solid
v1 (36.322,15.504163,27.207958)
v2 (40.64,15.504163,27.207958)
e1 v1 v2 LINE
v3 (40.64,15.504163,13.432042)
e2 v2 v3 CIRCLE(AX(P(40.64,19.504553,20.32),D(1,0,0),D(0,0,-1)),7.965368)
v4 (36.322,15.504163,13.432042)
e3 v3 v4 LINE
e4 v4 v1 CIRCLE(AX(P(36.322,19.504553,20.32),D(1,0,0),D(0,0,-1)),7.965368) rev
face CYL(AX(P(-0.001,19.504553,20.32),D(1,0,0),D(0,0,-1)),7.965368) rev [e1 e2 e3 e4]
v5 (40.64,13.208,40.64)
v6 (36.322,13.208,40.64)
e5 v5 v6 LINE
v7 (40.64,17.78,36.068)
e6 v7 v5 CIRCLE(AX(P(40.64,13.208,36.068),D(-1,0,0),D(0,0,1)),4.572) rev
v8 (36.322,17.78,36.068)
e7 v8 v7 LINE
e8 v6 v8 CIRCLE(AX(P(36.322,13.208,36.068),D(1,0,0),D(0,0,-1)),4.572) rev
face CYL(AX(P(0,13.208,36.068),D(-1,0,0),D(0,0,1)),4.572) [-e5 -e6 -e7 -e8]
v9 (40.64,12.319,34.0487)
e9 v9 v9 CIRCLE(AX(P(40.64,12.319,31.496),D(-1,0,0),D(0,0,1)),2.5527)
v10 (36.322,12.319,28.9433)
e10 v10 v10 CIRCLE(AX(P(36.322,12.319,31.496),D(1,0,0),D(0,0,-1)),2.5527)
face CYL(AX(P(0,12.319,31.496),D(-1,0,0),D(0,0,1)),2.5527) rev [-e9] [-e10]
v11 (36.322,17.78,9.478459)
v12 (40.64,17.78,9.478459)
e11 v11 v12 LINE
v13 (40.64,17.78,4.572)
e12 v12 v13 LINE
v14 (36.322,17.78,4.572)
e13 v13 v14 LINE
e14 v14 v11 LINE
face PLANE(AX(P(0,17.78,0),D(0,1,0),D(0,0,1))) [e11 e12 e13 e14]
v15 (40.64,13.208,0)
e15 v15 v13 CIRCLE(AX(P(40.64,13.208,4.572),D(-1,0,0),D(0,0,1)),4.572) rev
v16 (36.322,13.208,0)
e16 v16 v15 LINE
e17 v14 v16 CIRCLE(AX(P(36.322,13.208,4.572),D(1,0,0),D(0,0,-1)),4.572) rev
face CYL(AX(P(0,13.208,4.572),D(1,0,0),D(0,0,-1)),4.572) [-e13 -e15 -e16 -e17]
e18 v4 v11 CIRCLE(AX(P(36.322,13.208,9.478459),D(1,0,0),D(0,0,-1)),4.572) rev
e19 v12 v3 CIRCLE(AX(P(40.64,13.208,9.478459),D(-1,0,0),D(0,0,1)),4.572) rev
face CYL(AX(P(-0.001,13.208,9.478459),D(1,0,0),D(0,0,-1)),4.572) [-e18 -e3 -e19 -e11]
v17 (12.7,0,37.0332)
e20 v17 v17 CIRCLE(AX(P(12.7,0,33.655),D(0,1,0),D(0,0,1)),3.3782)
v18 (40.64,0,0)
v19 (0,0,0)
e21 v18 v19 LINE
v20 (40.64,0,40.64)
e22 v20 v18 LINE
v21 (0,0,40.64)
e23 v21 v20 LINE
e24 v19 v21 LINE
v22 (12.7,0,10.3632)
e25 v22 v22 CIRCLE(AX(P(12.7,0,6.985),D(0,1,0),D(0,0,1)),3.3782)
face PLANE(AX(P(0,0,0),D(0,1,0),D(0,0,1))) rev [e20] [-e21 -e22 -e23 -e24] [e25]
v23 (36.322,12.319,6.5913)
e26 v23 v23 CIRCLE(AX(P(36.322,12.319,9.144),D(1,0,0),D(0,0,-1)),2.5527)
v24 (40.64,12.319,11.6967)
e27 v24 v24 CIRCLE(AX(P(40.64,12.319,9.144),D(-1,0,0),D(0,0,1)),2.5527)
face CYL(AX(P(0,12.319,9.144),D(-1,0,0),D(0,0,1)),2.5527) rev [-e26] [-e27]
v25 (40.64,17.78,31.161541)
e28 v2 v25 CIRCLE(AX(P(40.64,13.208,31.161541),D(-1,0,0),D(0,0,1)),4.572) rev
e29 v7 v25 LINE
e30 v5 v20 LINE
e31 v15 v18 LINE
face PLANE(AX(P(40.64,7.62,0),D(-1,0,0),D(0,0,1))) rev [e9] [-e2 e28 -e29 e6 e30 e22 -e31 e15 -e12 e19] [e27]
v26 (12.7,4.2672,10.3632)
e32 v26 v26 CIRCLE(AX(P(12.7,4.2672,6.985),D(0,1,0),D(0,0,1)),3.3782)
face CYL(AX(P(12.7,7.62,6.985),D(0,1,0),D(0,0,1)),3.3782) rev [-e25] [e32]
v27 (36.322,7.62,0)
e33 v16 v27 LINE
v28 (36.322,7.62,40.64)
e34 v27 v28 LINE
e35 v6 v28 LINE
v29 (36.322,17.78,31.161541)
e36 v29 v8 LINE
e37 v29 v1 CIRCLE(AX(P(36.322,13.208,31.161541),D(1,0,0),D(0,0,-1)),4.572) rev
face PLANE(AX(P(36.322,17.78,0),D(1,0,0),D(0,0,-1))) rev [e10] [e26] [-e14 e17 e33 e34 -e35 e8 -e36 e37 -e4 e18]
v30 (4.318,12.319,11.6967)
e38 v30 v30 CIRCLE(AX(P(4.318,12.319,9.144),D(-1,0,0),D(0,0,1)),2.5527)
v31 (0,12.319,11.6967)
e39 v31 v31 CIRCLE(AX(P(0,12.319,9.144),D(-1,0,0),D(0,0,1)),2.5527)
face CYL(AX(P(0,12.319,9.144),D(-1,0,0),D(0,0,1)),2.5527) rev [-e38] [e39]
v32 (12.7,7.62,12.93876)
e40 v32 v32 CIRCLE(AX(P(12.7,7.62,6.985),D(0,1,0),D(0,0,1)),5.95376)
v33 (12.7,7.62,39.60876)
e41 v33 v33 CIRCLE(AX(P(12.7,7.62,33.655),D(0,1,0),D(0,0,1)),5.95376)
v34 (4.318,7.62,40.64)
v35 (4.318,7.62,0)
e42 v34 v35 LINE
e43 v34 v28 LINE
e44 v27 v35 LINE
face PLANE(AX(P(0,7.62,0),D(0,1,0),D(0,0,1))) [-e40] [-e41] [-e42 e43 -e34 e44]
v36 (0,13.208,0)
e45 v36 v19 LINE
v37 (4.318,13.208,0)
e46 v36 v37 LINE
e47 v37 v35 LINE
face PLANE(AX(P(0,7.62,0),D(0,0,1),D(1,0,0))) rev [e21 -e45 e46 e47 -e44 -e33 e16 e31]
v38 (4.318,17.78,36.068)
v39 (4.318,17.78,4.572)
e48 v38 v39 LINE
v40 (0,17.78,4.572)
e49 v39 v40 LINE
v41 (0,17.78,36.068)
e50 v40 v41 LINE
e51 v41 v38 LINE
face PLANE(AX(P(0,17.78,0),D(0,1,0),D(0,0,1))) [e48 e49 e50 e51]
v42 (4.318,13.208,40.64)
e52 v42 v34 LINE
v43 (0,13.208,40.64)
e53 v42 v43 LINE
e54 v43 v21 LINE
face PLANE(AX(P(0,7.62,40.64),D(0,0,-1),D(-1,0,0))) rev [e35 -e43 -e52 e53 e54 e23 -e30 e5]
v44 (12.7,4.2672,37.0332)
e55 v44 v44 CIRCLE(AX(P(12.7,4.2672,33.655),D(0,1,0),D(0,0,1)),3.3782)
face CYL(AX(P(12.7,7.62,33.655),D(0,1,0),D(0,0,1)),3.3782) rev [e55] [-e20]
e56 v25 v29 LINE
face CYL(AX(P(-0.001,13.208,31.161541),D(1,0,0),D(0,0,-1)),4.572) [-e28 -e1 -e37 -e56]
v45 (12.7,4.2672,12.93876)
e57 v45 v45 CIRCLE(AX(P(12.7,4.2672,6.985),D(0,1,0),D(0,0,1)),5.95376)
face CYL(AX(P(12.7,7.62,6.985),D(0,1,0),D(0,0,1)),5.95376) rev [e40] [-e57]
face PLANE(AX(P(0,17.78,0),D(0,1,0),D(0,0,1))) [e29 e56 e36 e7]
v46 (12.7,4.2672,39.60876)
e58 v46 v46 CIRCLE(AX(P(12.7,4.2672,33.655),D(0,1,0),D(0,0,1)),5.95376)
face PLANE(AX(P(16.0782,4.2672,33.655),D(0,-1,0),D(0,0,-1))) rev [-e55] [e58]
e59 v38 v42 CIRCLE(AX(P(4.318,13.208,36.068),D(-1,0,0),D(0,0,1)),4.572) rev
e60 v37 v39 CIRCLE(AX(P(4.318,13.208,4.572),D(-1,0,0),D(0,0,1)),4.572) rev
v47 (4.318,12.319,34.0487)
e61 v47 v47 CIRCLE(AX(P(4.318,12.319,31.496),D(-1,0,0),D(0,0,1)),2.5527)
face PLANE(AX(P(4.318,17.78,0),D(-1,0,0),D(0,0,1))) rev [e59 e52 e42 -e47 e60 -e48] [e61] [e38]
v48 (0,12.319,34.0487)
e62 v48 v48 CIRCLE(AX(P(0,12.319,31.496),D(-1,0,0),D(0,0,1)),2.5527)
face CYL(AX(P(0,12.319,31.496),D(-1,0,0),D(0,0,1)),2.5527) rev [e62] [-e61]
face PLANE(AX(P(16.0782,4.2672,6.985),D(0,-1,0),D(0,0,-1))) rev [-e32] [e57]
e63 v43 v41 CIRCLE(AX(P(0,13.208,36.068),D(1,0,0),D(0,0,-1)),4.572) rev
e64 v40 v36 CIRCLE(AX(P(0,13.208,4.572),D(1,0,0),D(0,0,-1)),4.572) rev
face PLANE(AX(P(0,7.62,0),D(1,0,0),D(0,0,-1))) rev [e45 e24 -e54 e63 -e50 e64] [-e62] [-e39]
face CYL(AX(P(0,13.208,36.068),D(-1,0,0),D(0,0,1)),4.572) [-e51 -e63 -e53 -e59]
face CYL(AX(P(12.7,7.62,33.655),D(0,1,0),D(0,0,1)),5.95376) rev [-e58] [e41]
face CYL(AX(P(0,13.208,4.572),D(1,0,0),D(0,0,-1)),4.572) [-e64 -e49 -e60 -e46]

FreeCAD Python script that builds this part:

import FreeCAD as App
import Part
import Sketcher
from FreeCAD import Vector
Q = App.Units.Quantity


def edges_at(feature, points):
    """Names of the edges that pass closest to the given points."""
    edges = feature.Shape.Edges
    near = lambda p: min(range(len(edges)), key=lambda i: edges[i].distToShape(Part.Vertex(*p))[0])
    return sorted({f"Edge{near(p) + 1}" for p in points})

doc = App.newDocument("Part")
params = doc.addObject("Spreadsheet::Sheet", "Params")
for row, (alias, value) in enumerate([
    ("sketch1_width", "1.6 in"),
    ("pad1_length", "0.3 in"),
    ("sketch2_height", "1.6 in"),
    ("sketch2_width", "0.17 in"),
    ("pad2_length", "0.4 in"),
    ("sketch3_diameter", "0.201 in"),
    ("hole_diameter", "0.201 in"),
    ("sketch4_diameter", "0.266 in"),
    ("hole2_diameter", "0.266 in"),
    ("hole2_cbore_diameter", "0.4688 in"),
    ("hole2_cbore_depth", "0.132 in"),
    ("pocket1_length", "0.17 in"),
    ("fillet_radius", "0.18 in"),
], start=1):
    params.set(f"A{row}", alias)
    params.set(f"B{row}", "=" + value)
    params.setAlias(f"B{row}", alias)

body = doc.addObject("PartDesign::Body", "Body")

# Sketch on XZ plane
sketch1 = body.newObject("Sketcher::SketchObject", "Sketch")
sketch1.AttachmentSupport = (doc.getObject("XZ_Plane"), [""])
sketch1.MapMode = "FlatFace"
sketch1.addGeometry([
    Part.LineSegment(Vector(0, 0, 0), Vector(0, 40.64, 0)),
    Part.LineSegment(Vector(0, 40.64, 0), Vector(40.64, 40.64, 0)),
    Part.LineSegment(Vector(40.64, 40.64, 0), Vector(40.64, 0, 0)),
    Part.LineSegment(Vector(40.64, 0, 0), Vector(0, 0, 0)),
], False)
sketch1.addConstraint([
    Sketcher.Constraint("Coincident", 0, 2, 1, 1),
    Sketcher.Constraint("Coincident", 1, 2, 2, 1),
    Sketcher.Constraint("Coincident", 2, 2, 3, 1),
    Sketcher.Constraint("Coincident", 3, 2, 0, 1),
    Sketcher.Constraint("Vertical", 0),
    Sketcher.Constraint("Horizontal", 1),
    Sketcher.Constraint("Vertical", 2),
    Sketcher.Constraint("Horizontal", 3),
    Sketcher.Constraint("Coincident", 3, 2, -1, 1),
    Sketcher.Constraint("Equal", 3, 0),
    Sketcher.Constraint("DistanceX", 1, 1, 1, 2, Q("1.6 in")),
])
sketch1.setExpression("Constraints[10]", "Params.sketch1_width")
pad1 = body.newObject("PartDesign::Pad", "Pad")
pad1.Profile = sketch1
pad1.setExpression("Length", "Params.pad1_length")
pad1.Reversed = True

# Sketch on XZ plane
sketch2 = body.newObject("Sketcher::SketchObject", "Sketch001")
sketch2.AttachmentSupport = (doc.getObject("XZ_Plane"), [""])
sketch2.MapMode = "FlatFace"
sketch2.AttachmentOffset = App.Placement(Vector(0, 0, -0.3 * 25.4), App.Rotation())
sketch2.addGeometry([
    Part.LineSegment(Vector(0, 0, 0), Vector(0, 40.64, 0)),  # 0
    Part.LineSegment(Vector(0, 40.64, 0), Vector(4.318, 40.64, 0)),  # 1
    Part.LineSegment(Vector(4.318, 40.64, 0), Vector(4.318, 0, 0)),  # 2
    Part.LineSegment(Vector(4.318, 0, 0), Vector(0, 0, 0)),  # 3
    Part.LineSegment(Vector(36.322, 0, 0), Vector(36.322, 40.64, 0)),  # 4
    Part.LineSegment(Vector(36.322, 40.64, 0), Vector(40.64, 40.64, 0)),  # 5
    Part.LineSegment(Vector(40.64, 40.64, 0), Vector(40.64, 0, 0)),  # 6
    Part.LineSegment(Vector(40.64, 0, 0), Vector(36.322, 0, 0)),  # 7
], False)
sketch2.addConstraint([
    Sketcher.Constraint("Coincident", 0, 2, 1, 1),
    Sketcher.Constraint("Coincident", 1, 2, 2, 1),
    Sketcher.Constraint("Coincident", 2, 2, 3, 1),
    Sketcher.Constraint("Coincident", 3, 2, 0, 1),
    Sketcher.Constraint("Coincident", 4, 2, 5, 1),
    Sketcher.Constraint("Coincident", 5, 2, 6, 1),
    Sketcher.Constraint("Coincident", 6, 2, 7, 1),
    Sketcher.Constraint("Coincident", 7, 2, 4, 1),
    Sketcher.Constraint("Vertical", 0),
    Sketcher.Constraint("Horizontal", 1),
    Sketcher.Constraint("Vertical", 2),
    Sketcher.Constraint("Horizontal", 3),
    Sketcher.Constraint("Vertical", 4),
    Sketcher.Constraint("Horizontal", 5),
    Sketcher.Constraint("Vertical", 6),
    Sketcher.Constraint("Horizontal", 7),
    Sketcher.Constraint("Coincident", 3, 2, -1, 1),
    Sketcher.Constraint("PointOnObject", 6, 2, -1),
    Sketcher.Constraint("Horizontal", 1, 2, 4, 2),
    Sketcher.Constraint("Equal", 3, 5),
    Sketcher.Constraint("DistanceY", 0, 1, 0, 2, Q("1.6 in")),
    Sketcher.Constraint("DistanceX", 1, 1, 1, 2, Q("0.17 in")),
    Sketcher.Constraint("DistanceX", -1, 1, 5, 2, Q("1.6 in")),
])
sketch2.setExpression("Constraints[20]", "Params.sketch2_height")
sketch2.setExpression("Constraints[21]", "Params.sketch2_width")
pad2 = body.newObject("PartDesign::Pad", "Pad001")
pad2.Profile = sketch2
pad2.setExpression("Length", "Params.pad2_length")
pad2.Reversed = True

# Sketch on YZ plane
sketch3 = body.newObject("Sketcher::SketchObject", "Sketch002")
sketch3.AttachmentSupport = (doc.getObject("YZ_Plane"), [""])
sketch3.MapMode = "FlatFace"
sketch3.addGeometry([
    Part.Circle(Vector(12.319, 9.144, 0), Vector(0, 0, 1), 2.5527),
    Part.Circle(Vector(12.319, 31.496, 0), Vector(0, 0, 1), 2.5527),
], False)
sketch3.addConstraint([
    Sketcher.Constraint("Equal", 0, 1),
    Sketcher.Constraint("Vertical", 0, 3, 1, 3),
    Sketcher.Constraint("Diameter", 0, Q("0.201 in")),
    Sketcher.Constraint("DistanceY", -1, 1, 0, 3, Q("0.36 in")),
    Sketcher.Constraint("DistanceY", -1, 1, 1, 3, Q("1.24 in")),
    Sketcher.Constraint("DistanceX", -1, 1, 0, 3, Q("0.485 in")),
])
sketch3.setExpression("Constraints[2]", "Params.sketch3_diameter")
doc.recompute()
hole = body.newObject("PartDesign::Hole", "Hole")
hole.Profile = sketch3
hole.ThreadType = "None"
hole.setExpression("Diameter", "Params.hole_diameter")
hole.DepthType = "ThroughAll"
hole.Reversed = True

# Sketch on XZ plane
sketch4 = body.newObject("Sketcher::SketchObject", "Sketch003")
sketch4.AttachmentSupport = (doc.getObject("XZ_Plane"), [""])
sketch4.MapMode = "FlatFace"
sketch4.AttachmentOffset = App.Placement(Vector(0, 0, -0.3 * 25.4), App.Rotation())
sketch4.addGeometry([
    Part.Circle(Vector(12.7, 6.985, 0), Vector(0, 0, 1), 3.3782),
    Part.Circle(Vector(12.7, 33.655, 0), Vector(0, 0, 1), 3.3782),
], False)
sketch4.addConstraint([
    Sketcher.Constraint("Equal", 0, 1),
    Sketcher.Constraint("Vertical", 0, 3, 1, 3),
    Sketcher.Constraint("Diameter", 0, Q("0.266 in")),
    Sketcher.Constraint("DistanceX", -1, 1, 0, 3, Q("0.5 in")),
    Sketcher.Constraint("DistanceY", 0, 3, 1, 3, Q("1.05 in")),
    Sketcher.Constraint("DistanceY", -1, 1, 0, 3, Q("0.275 in")),
])
sketch4.setExpression("Constraints[2]", "Params.sketch4_diameter")
doc.recompute()
hole2 = body.newObject("PartDesign::Hole", "Hole001")
hole2.Profile = sketch4
hole2.ThreadType = "None"
hole2.setExpression("Diameter", "Params.hole2_diameter")
hole2.DepthType = "ThroughAll"
hole2.HoleCutType = "Counterbore"
hole2.setExpression("HoleCutDiameter", "Params.hole2_cbore_diameter")
hole2.setExpression("HoleCutDepth", "Params.hole2_cbore_depth")
hole2.Reversed = True

# Sketch on YZ plane
sketch5 = body.newObject("Sketcher::SketchObject", "Sketch004")
sketch5.AttachmentSupport = (doc.getObject("YZ_Plane"), [""])
sketch5.MapMode = "FlatFace"
sketch5.AttachmentOffset = App.Placement(Vector(0, 0, 1.6 * 25.4), App.Rotation())
sketch5.addGeometry(Part.Circle(Vector(19.504553, 20.32, 0), Vector(0, 0, 1), 7.965368), False)
sketch5.addConstraint([
    Sketcher.Constraint("DistanceY", -1, 1, 0, 3, Q("0.8 in")),
    Sketcher.Constraint("Diameter", 0, 15.930736),
    Sketcher.Constraint("DistanceX", -1, 1, 0, 3, 19.504553),
])
pocket1 = body.newObject("PartDesign::Pocket", "Pocket")
pocket1.Profile = sketch5
pocket1.setExpression("Length", "Params.pocket1_length")
doc.recompute()

fillet = body.newObject("PartDesign::Fillet", "Fillet")
fillet.Base = (pocket1, edges_at(pocket1, [
    (2.159, 17.78, 40.64),
    (2.159, 17.78, 0),
    (38.481, 17.78, 40.64),
    (38.481, 17.78, 0),
    (38.481, 17.78, 28.096),
    (38.481, 17.78, 12.544),
]))
fillet.setExpression("Radius", "Params.fillet_radius")

doc.recompute()
